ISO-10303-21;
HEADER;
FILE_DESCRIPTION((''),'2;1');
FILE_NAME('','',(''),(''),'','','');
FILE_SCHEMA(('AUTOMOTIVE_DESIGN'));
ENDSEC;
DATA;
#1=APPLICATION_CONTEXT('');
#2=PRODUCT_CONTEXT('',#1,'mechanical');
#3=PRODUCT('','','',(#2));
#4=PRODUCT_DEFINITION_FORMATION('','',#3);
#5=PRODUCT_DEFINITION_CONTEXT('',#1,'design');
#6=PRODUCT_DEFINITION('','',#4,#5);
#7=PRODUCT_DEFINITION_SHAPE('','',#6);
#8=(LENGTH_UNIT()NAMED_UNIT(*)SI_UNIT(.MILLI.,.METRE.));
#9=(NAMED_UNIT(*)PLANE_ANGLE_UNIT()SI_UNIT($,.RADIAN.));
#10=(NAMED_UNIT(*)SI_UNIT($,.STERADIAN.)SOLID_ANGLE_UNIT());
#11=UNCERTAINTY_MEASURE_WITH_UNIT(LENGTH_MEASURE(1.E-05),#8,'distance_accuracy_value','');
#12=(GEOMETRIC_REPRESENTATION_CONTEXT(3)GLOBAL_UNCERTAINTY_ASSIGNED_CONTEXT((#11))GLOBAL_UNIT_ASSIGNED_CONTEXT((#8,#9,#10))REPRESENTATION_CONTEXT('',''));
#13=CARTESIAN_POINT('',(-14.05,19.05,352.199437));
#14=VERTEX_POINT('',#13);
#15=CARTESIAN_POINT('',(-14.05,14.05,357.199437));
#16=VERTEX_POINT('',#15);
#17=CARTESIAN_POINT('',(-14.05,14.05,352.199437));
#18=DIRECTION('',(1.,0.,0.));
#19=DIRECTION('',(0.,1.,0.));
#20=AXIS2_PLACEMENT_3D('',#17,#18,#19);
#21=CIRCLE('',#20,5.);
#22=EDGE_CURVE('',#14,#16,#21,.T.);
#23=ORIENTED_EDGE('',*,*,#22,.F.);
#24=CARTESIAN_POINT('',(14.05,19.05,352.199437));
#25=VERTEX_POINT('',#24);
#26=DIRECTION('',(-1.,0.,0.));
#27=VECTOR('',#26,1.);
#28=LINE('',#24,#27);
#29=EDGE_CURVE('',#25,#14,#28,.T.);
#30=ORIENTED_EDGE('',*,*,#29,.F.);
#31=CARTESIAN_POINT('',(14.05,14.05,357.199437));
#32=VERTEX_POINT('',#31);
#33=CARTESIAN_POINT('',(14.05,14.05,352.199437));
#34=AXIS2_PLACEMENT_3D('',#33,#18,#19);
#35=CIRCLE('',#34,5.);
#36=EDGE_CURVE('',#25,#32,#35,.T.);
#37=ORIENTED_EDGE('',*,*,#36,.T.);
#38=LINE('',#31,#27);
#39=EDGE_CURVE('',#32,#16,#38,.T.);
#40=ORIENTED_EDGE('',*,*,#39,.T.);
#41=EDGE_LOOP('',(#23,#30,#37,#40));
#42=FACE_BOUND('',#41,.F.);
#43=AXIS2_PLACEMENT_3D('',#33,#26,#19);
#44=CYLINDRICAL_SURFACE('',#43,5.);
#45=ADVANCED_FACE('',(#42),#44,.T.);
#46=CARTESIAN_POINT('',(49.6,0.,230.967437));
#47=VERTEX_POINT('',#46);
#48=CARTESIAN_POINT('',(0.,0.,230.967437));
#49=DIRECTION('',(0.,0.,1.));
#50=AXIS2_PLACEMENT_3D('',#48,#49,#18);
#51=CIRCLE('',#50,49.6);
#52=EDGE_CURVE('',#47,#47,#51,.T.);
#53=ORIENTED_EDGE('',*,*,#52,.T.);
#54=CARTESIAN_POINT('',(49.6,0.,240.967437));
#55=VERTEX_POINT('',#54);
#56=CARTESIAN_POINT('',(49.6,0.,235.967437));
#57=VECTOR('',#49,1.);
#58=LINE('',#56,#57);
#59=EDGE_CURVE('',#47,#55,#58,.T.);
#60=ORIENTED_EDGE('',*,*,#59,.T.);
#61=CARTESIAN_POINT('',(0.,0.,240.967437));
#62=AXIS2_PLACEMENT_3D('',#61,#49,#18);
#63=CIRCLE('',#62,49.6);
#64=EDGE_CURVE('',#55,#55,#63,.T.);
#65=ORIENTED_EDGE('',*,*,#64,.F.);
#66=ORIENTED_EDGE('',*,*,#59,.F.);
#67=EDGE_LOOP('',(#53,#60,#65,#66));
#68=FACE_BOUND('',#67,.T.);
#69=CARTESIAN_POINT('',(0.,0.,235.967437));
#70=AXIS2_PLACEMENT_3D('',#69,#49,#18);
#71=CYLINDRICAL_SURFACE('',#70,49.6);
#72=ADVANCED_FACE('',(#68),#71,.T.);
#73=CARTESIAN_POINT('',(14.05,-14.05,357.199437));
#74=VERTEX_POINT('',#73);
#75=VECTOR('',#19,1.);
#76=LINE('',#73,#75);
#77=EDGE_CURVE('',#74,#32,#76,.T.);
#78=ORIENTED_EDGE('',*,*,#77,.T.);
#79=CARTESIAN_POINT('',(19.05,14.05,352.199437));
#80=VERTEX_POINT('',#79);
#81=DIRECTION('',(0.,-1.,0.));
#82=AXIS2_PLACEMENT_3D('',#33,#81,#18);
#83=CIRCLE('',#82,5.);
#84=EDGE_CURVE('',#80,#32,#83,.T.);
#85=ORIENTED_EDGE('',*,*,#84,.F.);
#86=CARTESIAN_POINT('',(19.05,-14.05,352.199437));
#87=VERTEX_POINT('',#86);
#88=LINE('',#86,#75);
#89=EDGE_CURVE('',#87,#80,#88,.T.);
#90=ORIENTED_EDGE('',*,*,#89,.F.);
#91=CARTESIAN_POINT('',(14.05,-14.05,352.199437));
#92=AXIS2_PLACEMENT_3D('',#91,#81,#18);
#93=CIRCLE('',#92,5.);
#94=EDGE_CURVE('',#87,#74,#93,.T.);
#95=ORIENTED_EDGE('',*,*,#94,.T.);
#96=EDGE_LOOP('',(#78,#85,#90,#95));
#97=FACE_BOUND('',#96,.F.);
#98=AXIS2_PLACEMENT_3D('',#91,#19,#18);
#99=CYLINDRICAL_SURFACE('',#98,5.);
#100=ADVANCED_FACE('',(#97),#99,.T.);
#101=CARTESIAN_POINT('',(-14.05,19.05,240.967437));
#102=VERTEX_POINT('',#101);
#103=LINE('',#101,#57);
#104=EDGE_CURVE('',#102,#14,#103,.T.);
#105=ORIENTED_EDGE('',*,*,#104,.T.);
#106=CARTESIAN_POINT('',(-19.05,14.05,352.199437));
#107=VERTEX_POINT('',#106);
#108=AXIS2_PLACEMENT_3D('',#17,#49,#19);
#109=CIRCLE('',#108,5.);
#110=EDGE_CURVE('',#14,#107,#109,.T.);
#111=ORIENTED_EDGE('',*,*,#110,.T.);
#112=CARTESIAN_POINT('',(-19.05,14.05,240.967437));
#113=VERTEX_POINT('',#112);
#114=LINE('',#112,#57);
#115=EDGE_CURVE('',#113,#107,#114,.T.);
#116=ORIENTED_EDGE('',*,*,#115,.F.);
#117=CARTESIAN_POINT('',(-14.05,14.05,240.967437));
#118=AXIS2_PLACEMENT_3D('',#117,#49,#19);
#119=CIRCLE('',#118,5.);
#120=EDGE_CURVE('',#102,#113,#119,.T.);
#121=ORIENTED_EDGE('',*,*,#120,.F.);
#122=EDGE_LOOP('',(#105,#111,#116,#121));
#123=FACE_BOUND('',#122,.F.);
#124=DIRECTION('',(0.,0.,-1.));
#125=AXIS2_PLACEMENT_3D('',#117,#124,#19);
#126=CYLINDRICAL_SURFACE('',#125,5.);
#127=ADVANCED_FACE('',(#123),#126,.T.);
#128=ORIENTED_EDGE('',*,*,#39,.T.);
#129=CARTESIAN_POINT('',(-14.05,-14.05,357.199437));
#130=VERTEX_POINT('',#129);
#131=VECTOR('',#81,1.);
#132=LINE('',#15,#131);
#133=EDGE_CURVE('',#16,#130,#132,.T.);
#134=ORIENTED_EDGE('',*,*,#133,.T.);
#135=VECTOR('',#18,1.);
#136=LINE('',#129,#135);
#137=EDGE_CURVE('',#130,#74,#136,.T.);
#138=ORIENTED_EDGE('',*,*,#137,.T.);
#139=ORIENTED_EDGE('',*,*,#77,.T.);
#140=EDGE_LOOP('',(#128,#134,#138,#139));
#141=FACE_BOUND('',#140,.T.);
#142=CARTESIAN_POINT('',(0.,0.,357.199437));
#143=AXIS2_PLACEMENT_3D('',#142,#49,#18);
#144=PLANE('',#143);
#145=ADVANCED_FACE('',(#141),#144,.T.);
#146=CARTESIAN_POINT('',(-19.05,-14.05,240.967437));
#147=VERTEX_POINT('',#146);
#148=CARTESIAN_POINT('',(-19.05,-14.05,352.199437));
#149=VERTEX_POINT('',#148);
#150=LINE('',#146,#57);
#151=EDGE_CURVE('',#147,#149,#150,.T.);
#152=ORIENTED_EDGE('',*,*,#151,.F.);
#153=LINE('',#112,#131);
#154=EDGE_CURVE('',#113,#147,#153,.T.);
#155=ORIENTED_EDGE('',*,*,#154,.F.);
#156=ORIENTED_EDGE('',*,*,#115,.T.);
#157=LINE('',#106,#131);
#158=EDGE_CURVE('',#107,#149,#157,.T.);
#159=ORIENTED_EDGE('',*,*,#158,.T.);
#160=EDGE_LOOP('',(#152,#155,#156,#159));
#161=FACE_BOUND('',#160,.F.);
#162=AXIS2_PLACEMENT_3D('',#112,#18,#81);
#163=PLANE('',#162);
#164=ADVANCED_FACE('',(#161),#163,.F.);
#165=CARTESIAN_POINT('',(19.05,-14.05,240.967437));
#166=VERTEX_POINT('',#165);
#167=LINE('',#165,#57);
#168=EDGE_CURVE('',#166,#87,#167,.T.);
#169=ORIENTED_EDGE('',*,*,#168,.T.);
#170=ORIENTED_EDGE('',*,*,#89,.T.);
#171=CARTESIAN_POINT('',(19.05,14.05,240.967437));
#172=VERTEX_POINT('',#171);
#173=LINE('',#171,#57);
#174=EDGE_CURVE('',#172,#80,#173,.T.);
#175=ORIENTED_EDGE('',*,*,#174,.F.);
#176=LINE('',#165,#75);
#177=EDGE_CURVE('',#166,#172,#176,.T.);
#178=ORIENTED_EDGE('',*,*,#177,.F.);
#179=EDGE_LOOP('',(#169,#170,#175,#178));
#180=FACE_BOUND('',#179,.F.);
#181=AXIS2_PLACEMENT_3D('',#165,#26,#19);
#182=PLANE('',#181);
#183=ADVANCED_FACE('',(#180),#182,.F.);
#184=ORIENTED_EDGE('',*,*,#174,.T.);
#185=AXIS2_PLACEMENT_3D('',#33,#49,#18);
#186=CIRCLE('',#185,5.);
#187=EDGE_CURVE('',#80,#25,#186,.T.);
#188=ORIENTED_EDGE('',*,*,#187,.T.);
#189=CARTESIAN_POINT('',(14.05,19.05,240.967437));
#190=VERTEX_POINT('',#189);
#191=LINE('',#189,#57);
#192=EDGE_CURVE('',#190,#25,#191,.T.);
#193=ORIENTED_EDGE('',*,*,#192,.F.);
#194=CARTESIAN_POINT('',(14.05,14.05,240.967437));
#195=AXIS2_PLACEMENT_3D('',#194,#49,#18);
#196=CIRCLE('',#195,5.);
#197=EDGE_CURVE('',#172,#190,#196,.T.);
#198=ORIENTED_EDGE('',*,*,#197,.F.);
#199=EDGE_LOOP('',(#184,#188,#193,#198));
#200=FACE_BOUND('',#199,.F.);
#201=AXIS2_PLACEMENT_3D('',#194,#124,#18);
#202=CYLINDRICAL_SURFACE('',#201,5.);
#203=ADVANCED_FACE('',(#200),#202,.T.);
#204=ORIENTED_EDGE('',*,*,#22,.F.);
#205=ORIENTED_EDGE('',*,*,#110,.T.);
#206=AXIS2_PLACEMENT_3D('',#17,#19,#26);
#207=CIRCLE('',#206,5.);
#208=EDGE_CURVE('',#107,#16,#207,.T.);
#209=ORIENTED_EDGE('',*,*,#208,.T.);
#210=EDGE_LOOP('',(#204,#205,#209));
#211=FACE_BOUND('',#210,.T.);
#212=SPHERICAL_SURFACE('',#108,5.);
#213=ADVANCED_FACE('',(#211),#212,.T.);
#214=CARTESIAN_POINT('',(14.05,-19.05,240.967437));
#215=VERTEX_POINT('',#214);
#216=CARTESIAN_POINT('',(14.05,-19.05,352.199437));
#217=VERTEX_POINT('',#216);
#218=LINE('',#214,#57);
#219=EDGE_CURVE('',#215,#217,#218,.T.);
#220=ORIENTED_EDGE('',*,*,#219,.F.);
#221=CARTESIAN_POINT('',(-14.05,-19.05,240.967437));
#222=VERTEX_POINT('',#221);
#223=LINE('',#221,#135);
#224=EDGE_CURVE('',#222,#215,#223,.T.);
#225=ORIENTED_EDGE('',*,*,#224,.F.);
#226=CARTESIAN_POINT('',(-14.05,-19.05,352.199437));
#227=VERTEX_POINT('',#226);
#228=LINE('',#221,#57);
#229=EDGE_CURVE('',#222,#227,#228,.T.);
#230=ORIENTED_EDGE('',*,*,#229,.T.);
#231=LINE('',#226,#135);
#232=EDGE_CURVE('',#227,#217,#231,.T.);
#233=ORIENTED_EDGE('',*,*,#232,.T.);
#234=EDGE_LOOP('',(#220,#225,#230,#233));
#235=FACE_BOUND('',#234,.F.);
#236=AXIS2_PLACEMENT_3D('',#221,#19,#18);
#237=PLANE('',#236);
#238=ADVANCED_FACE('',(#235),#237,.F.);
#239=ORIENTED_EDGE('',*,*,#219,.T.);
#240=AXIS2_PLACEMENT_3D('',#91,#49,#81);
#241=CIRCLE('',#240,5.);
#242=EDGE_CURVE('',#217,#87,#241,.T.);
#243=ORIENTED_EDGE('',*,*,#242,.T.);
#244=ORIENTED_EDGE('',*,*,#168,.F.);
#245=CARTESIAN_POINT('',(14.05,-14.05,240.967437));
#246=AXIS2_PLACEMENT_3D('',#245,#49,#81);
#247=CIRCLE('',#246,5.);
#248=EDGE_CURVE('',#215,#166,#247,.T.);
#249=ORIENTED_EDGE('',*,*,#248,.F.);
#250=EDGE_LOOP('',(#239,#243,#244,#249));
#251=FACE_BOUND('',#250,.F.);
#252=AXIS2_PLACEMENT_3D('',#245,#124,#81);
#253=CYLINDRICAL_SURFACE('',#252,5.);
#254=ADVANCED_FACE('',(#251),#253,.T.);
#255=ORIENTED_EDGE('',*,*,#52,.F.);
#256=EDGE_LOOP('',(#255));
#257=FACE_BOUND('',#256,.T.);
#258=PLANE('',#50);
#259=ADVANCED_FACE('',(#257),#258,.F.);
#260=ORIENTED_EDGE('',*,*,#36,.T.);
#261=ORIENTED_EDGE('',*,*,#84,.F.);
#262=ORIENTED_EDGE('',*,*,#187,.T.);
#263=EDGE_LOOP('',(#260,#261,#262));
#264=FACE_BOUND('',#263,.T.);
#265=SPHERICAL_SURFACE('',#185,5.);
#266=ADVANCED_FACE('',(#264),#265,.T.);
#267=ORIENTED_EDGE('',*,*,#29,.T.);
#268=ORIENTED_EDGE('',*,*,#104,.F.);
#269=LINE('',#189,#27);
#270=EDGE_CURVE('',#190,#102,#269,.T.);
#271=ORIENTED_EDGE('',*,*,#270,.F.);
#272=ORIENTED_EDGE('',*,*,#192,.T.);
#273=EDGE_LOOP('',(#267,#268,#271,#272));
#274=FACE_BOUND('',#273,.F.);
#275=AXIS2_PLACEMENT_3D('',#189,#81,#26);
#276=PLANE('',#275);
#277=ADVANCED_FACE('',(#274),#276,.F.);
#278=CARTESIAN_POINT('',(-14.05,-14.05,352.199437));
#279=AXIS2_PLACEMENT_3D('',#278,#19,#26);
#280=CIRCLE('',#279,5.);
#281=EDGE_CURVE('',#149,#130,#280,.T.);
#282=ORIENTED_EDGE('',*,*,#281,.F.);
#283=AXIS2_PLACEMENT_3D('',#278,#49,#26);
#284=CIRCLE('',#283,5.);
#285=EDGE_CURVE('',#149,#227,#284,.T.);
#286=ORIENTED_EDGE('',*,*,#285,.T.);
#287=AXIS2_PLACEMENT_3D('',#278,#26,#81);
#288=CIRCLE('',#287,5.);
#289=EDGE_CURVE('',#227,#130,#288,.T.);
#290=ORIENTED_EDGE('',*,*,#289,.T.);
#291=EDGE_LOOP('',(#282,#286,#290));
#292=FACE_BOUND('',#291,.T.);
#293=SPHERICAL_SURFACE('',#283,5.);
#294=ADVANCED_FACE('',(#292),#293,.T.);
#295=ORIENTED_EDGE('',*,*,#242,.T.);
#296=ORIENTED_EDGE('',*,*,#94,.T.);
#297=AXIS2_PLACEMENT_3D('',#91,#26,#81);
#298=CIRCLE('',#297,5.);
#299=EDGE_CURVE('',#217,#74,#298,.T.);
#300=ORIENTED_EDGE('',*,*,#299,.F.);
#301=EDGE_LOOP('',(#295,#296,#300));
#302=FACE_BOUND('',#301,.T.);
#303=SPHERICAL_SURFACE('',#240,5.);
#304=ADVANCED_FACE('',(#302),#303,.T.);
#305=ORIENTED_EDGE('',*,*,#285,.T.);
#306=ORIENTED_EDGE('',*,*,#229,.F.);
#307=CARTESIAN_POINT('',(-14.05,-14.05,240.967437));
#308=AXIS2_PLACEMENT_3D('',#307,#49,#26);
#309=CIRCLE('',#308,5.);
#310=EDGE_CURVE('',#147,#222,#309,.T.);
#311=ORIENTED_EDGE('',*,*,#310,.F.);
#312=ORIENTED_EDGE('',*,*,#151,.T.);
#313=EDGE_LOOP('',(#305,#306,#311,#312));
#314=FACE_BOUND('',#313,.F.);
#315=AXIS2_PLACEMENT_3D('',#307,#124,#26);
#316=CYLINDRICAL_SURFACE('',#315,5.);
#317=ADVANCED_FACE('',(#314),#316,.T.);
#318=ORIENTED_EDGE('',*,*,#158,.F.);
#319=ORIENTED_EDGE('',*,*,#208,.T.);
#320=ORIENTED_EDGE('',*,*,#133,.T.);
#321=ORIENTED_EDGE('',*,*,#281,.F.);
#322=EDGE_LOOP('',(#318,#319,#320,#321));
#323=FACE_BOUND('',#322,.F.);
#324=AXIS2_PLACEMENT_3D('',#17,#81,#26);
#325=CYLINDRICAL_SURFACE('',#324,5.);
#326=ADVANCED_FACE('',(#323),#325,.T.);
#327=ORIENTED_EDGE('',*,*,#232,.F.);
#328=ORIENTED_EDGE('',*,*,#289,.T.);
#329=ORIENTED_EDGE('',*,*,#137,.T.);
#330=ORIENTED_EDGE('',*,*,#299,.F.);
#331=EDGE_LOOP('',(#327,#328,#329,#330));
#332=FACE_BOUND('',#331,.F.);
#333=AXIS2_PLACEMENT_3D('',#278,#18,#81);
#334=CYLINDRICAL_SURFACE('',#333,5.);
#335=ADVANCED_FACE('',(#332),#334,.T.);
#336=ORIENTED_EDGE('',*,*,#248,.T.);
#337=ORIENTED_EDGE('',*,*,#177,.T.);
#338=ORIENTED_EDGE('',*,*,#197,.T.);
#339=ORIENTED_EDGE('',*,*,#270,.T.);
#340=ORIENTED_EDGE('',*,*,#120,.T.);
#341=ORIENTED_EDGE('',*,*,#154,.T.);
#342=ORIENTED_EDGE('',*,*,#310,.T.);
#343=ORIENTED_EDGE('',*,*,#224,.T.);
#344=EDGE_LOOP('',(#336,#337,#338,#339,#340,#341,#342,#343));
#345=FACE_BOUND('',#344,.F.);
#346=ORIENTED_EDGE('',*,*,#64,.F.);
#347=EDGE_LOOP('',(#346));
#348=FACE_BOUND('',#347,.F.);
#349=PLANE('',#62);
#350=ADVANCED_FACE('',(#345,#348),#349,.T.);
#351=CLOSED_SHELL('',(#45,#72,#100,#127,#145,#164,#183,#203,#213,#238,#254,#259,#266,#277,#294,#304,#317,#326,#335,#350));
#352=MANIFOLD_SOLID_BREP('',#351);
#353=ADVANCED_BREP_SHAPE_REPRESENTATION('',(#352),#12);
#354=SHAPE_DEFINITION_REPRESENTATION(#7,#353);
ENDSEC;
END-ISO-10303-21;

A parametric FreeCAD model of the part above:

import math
import FreeCAD as App
import Part
import Sketcher
from FreeCAD import Vector


def edges_at(feature, points):
    """Names of the edges that pass closest to the given points."""
    edges = feature.Shape.Edges
    near = lambda p: min(range(len(edges)), key=lambda i: edges[i].distToShape(Part.Vertex(*p))[0])
    return sorted({f"Edge{near(p) + 1}" for p in points})


def add_polygon(sketch, points):
    """Adds a closed chain of lines whose ends are joined by coincident constraints."""
    first, n = sketch.GeometryCount, len(points)
    for a, b in zip(points, points[1:] + points[:1]):
        sketch.addGeometry(Part.LineSegment(App.Vector(*a, 0), App.Vector(*b, 0)), False)
    for i in range(n):
        sketch.addConstraint(Sketcher.Constraint("Coincident", first + i, 2, first + (i + 1) % n, 1))

doc = App.newDocument("Part")
body = doc.addObject("PartDesign::Body", "Body")

# Sketch on XZ plane
sketch1 = body.newObject("Sketcher::SketchObject", "Sketch")
sketch1.AttachmentSupport = (doc.getObject("XZ_Plane"), [""])
sketch1.MapMode = "FlatFace"
add_polygon(sketch1, [(0, 241), (0, 231), (50, 231), (50, 241)])  # lines 0-3
sketch1.addConstraint([
    Sketcher.Constraint("Vertical", 0),
    Sketcher.Constraint("Horizontal", 1),
    Sketcher.Constraint("Vertical", 2),
    Sketcher.Constraint("Horizontal", 3),
    Sketcher.Constraint("PointOnObject", 0, 2, -2),
    Sketcher.Constraint("DistanceY", 0, 2, 0, 1, 10.0),
    Sketcher.Constraint("DistanceX", 1, 1, 1, 2, 49.6),
    Sketcher.Constraint("DistanceY", -1, 1, 0, 2, 230.967437),
])
revolution = body.newObject("PartDesign::Revolution", "Revolution")
revolution.Profile = sketch1
revolution.ReferenceAxis = (sketch1, ["V_Axis"])
revolution.Angle = 360

# Sketch on XY plane
sketch2 = body.newObject("Sketcher::SketchObject", "Sketch001")
sketch2.AttachmentSupport = (doc.getObject("XY_Plane"), [""])
sketch2.MapMode = "FlatFace"
sketch2.AttachmentOffset = App.Placement(Vector(0, 0, 240.967437), App.Rotation())
sketch2.addGeometry([
    Part.ArcOfCircle(Part.Circle(Vector(14, 14, 0), Vector(0, 0, 1), 5), math.radians(0), math.radians(90)),  # 0
    Part.LineSegment(Vector(14, 19, 0), Vector(-14, 19, 0)),  # 1
    Part.ArcOfCircle(Part.Circle(Vector(-14, 14, 0), Vector(0, 0, 1), 5), math.radians(90), math.radians(180)),  # 2
    Part.LineSegment(Vector(-19, 14, 0), Vector(-19, -14, 0)),  # 3
    Part.ArcOfCircle(Part.Circle(Vector(-14, -14, 0), Vector(0, 0, 1), 5), math.radians(180), math.radians(270)),  # 4
    Part.LineSegment(Vector(-14, -19, 0), Vector(14, -19, 0)),  # 5
    Part.ArcOfCircle(Part.Circle(Vector(14, -14, 0), Vector(0, 0, 1), 5), math.radians(-90), math.radians(0)),  # 6
    Part.LineSegment(Vector(19, -14, 0), Vector(19, 14, 0)),  # 7
], False)
sketch2.addConstraint([
    Sketcher.Constraint("Tangent", 0, 2, 1, 1),
    Sketcher.Constraint("Tangent", 1, 2, 2, 1),
    Sketcher.Constraint("Tangent", 2, 2, 3, 1),
    Sketcher.Constraint("Tangent", 3, 2, 4, 1),
    Sketcher.Constraint("Tangent", 4, 2, 5, 1),
    Sketcher.Constraint("Tangent", 5, 2, 6, 1),
    Sketcher.Constraint("Tangent", 6, 2, 7, 1),
    Sketcher.Constraint("Tangent", 7, 2, 0, 1),
    Sketcher.Constraint("Horizontal", 1),
    Sketcher.Constraint("Vertical", 3),
    Sketcher.Constraint("Horizontal", 5),
    Sketcher.Constraint("Vertical", 7),
    Sketcher.Constraint("Equal", 0, 2),
    Sketcher.Constraint("Equal", 2, 4),
    Sketcher.Constraint("Equal", 4, 6),
    Sketcher.Constraint("Symmetric", 0, 3, 4, 3, -1, 1),
    Sketcher.Constraint("Equal", 5, 3),
    Sketcher.Constraint("Radius", 0, 5.0),
    Sketcher.Constraint("DistanceX", 1, 2, 1, 1, 28.1),
])
pad1 = body.newObject("PartDesign::Pad", "Pad")
pad1.Profile = sketch2
pad1.Length = 116.232
doc.recompute()

fillet = body.newObject("PartDesign::Fillet", "Fillet")
fillet.Base = (pad1, edges_at(pad1, [(0, -19.05, 357.199)]))
fillet.Radius = 5

doc.recompute()
